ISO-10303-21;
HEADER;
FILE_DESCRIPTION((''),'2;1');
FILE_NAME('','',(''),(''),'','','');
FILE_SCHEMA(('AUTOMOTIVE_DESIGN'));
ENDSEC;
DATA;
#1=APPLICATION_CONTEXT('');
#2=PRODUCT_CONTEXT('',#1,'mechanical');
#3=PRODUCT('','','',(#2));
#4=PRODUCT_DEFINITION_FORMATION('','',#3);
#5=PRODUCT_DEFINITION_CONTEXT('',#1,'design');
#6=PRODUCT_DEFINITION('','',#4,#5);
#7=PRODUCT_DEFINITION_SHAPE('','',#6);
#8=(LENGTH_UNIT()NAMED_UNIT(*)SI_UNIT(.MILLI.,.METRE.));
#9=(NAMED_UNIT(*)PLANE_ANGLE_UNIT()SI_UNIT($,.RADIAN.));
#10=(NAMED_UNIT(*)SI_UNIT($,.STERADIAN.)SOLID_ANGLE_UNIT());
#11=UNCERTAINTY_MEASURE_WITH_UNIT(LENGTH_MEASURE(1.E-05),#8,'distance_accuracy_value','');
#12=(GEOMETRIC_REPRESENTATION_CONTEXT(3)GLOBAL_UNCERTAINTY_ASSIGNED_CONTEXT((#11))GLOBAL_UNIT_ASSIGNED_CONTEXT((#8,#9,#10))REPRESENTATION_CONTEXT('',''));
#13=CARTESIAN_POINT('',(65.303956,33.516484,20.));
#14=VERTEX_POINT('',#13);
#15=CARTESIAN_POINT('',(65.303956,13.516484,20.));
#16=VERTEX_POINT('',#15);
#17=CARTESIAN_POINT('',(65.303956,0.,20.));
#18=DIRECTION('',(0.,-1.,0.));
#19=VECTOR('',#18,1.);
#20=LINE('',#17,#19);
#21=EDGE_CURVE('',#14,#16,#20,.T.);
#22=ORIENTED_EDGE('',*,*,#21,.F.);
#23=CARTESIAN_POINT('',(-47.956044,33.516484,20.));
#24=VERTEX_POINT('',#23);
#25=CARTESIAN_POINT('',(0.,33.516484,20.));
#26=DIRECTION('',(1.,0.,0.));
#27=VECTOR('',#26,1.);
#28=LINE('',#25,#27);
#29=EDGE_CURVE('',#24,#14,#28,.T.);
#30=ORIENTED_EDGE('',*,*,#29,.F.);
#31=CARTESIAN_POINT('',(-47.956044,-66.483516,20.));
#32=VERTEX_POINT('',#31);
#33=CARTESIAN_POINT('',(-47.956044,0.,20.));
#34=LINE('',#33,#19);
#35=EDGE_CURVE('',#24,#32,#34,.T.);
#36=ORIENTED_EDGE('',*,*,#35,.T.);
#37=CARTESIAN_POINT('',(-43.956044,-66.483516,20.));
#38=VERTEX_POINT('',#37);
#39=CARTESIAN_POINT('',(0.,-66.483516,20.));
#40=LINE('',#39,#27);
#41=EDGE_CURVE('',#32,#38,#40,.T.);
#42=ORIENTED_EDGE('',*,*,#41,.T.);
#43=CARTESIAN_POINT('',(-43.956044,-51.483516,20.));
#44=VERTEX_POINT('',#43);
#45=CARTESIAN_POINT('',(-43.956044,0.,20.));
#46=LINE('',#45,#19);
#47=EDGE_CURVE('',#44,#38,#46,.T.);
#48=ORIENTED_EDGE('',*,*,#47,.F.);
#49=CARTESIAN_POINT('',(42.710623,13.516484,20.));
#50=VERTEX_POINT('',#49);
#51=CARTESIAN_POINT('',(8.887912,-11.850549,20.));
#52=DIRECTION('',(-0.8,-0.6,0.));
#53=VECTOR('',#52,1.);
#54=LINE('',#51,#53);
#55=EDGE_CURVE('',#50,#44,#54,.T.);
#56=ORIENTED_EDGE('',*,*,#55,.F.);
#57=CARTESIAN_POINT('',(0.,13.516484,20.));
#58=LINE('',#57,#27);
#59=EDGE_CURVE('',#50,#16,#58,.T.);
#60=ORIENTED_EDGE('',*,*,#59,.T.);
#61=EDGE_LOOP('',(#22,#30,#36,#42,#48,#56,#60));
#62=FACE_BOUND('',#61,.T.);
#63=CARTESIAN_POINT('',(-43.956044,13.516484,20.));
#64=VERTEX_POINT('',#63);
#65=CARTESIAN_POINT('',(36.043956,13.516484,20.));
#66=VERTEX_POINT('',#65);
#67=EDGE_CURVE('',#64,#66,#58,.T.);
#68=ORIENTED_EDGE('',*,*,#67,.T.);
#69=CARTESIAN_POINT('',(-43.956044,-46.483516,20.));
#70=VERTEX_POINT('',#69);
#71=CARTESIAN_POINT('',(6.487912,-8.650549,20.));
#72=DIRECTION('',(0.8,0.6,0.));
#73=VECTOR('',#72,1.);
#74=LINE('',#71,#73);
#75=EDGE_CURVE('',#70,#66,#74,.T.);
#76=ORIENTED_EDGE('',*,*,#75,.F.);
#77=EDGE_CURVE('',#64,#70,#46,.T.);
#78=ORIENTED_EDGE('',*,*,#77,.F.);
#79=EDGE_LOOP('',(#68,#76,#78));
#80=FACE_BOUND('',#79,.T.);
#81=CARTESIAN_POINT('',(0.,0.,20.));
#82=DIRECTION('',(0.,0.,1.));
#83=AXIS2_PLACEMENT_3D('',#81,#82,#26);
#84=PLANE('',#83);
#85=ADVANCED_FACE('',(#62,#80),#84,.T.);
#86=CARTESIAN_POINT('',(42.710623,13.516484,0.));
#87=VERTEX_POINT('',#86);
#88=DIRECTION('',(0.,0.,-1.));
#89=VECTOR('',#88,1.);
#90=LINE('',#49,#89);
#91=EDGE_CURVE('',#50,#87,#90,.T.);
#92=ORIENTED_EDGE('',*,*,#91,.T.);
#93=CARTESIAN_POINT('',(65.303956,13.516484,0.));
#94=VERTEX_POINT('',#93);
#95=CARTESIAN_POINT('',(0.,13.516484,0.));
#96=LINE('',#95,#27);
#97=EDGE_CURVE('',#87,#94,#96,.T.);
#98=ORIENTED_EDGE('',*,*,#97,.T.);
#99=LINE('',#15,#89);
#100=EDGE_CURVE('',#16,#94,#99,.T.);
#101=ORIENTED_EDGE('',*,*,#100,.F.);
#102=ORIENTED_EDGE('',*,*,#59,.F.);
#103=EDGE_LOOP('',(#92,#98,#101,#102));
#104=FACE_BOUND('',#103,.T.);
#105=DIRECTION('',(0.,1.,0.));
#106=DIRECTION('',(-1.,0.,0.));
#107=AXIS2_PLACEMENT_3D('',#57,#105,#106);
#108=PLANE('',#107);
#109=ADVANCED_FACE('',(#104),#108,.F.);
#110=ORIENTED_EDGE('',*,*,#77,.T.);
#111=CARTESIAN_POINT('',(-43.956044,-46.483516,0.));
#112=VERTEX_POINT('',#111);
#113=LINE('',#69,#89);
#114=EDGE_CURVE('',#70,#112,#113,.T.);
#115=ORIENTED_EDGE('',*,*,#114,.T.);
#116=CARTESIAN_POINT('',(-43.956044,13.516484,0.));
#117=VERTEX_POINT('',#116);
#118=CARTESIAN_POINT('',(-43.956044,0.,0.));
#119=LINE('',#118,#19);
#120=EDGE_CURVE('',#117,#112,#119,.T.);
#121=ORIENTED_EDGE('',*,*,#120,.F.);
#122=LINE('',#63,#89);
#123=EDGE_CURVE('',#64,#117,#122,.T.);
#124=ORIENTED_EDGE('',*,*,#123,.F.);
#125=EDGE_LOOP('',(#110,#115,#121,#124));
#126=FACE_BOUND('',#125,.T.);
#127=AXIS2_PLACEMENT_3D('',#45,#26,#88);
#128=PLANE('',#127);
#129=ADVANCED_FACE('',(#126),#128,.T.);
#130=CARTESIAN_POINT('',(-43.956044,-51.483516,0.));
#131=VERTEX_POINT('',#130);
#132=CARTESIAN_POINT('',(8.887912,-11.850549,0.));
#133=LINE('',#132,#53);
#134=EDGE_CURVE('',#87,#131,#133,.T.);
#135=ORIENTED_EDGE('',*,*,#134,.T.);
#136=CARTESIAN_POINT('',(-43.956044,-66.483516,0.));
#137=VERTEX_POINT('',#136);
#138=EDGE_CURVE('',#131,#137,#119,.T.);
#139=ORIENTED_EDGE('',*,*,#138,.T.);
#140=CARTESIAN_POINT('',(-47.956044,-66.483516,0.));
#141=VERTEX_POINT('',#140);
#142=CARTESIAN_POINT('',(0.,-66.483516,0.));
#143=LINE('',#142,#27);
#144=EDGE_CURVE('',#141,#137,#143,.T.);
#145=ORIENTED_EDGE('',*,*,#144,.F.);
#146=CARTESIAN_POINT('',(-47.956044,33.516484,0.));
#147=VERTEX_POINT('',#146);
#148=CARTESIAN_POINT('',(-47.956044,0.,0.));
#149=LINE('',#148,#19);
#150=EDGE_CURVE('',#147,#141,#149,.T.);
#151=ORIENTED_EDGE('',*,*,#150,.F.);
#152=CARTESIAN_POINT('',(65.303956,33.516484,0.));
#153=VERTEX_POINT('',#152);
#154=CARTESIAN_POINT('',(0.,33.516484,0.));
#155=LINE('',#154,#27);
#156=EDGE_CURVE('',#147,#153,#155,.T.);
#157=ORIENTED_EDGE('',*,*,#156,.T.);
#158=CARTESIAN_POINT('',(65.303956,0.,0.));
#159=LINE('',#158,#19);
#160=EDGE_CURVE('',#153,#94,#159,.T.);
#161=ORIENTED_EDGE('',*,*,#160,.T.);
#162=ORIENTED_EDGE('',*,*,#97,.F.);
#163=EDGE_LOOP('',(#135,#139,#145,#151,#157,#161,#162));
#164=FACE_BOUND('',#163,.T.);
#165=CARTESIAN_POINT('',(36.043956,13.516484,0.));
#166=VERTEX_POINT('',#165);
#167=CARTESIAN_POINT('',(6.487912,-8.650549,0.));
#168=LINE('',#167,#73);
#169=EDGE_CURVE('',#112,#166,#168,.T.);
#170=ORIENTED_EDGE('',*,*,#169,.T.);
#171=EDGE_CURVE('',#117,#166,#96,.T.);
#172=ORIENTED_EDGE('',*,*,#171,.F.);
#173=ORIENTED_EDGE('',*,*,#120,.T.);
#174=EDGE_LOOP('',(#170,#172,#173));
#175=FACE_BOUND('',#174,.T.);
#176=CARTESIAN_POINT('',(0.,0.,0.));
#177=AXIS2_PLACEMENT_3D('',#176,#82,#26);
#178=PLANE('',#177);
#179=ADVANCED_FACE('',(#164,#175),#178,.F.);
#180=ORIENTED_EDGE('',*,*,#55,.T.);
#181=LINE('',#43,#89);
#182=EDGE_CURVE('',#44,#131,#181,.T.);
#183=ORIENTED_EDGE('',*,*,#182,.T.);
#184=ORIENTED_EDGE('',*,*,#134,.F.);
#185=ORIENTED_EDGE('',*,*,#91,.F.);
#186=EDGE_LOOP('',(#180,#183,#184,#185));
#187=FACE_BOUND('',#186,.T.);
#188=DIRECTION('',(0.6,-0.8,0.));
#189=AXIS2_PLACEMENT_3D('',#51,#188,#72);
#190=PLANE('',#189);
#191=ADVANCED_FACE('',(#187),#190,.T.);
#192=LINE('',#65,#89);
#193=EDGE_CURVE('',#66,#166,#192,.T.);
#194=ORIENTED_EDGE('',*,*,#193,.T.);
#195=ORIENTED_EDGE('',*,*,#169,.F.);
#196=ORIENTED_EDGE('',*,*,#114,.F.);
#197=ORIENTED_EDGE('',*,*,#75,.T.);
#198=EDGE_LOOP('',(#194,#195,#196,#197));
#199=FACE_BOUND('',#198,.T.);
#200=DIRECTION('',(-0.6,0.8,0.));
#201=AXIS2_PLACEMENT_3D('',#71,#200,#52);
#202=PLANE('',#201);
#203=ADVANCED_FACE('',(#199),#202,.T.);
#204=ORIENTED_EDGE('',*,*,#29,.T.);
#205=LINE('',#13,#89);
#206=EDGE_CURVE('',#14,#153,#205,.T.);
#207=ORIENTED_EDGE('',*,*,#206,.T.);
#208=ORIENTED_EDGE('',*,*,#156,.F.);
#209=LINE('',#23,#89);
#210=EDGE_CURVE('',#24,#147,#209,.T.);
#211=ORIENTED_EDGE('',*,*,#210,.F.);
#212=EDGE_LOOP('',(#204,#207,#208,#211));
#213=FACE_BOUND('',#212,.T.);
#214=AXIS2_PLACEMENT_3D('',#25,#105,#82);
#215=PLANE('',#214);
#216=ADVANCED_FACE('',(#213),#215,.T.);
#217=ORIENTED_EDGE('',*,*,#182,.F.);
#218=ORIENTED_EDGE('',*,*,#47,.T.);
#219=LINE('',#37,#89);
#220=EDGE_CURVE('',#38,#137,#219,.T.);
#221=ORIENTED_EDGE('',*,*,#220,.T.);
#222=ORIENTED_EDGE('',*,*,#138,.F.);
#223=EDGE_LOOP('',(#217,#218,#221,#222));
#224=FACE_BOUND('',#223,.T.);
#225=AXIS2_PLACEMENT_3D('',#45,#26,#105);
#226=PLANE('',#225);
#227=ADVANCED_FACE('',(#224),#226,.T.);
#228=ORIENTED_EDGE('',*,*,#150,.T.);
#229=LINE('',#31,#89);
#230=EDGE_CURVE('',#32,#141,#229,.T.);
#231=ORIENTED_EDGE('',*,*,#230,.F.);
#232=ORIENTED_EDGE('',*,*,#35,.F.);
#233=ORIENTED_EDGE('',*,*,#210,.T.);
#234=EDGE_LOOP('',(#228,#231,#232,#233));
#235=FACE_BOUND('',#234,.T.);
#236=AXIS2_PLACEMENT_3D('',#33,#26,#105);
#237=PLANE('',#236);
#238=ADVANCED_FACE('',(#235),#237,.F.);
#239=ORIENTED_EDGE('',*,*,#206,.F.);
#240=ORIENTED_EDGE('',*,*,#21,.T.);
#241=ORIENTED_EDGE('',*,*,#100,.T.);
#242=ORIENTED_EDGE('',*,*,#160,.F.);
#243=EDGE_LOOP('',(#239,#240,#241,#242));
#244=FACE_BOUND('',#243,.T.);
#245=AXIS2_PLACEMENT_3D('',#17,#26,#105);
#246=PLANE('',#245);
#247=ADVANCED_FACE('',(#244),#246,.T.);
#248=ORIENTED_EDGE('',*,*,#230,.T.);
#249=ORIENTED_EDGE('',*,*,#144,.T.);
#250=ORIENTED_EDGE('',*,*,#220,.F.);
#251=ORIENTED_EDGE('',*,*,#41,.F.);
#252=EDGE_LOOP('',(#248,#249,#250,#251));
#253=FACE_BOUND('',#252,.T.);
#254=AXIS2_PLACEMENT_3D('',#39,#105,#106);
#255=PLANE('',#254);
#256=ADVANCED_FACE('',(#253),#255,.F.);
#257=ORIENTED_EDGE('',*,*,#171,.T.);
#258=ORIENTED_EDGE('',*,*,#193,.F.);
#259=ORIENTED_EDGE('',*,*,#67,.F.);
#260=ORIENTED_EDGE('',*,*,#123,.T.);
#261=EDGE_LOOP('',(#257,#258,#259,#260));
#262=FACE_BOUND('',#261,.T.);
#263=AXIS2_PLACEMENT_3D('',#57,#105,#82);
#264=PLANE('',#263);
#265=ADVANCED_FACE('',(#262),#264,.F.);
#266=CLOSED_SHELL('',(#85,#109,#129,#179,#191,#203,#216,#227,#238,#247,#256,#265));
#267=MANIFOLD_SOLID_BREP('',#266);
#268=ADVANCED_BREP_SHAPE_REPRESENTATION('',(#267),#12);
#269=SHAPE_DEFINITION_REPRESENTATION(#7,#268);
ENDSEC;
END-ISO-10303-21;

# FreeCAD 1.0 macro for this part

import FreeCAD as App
import Part
import Sketcher
from FreeCAD import Vector
Q = App.Units.Quantity


def add_polygon(sketch, points):
    """Adds a closed chain of lines whose ends are joined by coincident constraints."""
    first, n = sketch.GeometryCount, len(points)
    for a, b in zip(points, points[1:] + points[:1]):
        sketch.addGeometry(Part.LineSegment(App.Vector(*a, 0), App.Vector(*b, 0)), False)
    for i in range(n):
        sketch.addConstraint(Sketcher.Constraint("Coincident", first + i, 2, first + (i + 1) % n, 1))

doc = App.newDocument("Part")
body = doc.addObject("PartDesign::Body", "Body")

# Sketch on XY plane
sketch1 = body.newObject("Sketcher::SketchObject", "Sketch")
sketch1.AttachmentSupport = (doc.getObject("XY_Plane"), [""])
sketch1.MapMode = "FlatFace"
add_polygon(sketch1, [(65.303956, 33.516484), (-47.956044, 33.516484), (-47.956044, -66.483516), (-43.956044, -66.483516), (-43.956044, -51.483516), (42.710623, 13.516484), (65.303956, 13.516484)])  # lines 0-6
add_polygon(sketch1, [(-43.956044, 13.516484), (36.043956, 13.516484), (-43.956044, -46.483516)])  # lines 7-9
sketch1.addConstraint(Sketcher.Constraint("Horizontal", 0))
sketch1.addConstraint(Sketcher.Constraint("Vertical", 1))
sketch1.addConstraint(Sketcher.Constraint("Horizontal", 2))
sketch1.addConstraint(Sketcher.Constraint("Vertical", 3))
sketch1.addConstraint(Sketcher.Constraint("Horizontal", 5))
sketch1.addConstraint(Sketcher.Constraint("Vertical", 6))
sketch1.addConstraint(Sketcher.Constraint("Horizontal", 7))
sketch1.addConstraint(Sketcher.Constraint("Vertical", 9))
sketch1.addConstraint(Sketcher.Constraint("Parallel", 4, 8))
sketch1.addConstraint(Sketcher.Constraint("Horizontal", 5, 2, 7, 2))
sketch1.addConstraint(Sketcher.Constraint("Vertical", 3, 2, 8, 2))
sketch1.addConstraint(Sketcher.Constraint("DistanceX", 2, 1, 2, 2, Q("4 mm")))
sketch1.addConstraint(Sketcher.Constraint("DistanceX", 7, 1, 7, 2, Q("80 mm")))
sketch1.addConstraint(Sketcher.Constraint("DistanceY", 1, 2, 1, 1, Q("100 mm")))
sketch1.addConstraint(Sketcher.Constraint("DistanceY", 3, 1, 3, 2, Q("15 mm")))
sketch1.addConstraint(Sketcher.Constraint("DistanceY", 6, 1, 6, 2, Q("20 mm")))
sketch1.addConstraint(Sketcher.Constraint("DistanceY", 9, 1, 9, 2, Q("60 mm")))
sketch1.addConstraint(Sketcher.Constraint("DistanceX", 0, 2, 0, 1, Q("113.26 mm")))
sketch1.addConstraint(Sketcher.Constraint("DistanceX", 0, 2, -1, 1, Q("47.956044 mm")))
sketch1.addConstraint(Sketcher.Constraint("DistanceY", -1, 1, 0, 2, Q("33.516484 mm")))
pad1 = body.newObject("PartDesign::Pad", "Pad")
pad1.Profile = sketch1
pad1.Length = 20

doc.recompute()
